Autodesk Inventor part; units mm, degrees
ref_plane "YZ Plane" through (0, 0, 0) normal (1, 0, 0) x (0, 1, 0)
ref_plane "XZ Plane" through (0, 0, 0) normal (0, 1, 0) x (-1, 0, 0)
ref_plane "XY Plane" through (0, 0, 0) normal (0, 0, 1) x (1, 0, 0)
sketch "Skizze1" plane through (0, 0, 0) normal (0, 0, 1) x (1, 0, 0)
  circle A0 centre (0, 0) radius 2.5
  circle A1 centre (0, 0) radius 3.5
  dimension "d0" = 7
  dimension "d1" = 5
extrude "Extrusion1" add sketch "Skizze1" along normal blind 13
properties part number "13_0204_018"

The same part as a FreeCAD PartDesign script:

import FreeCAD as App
import Part
import Sketcher

doc = App.newDocument("Part")
body = doc.addObject("PartDesign::Body", "Body")

sketch1 = body.newObject("Sketcher::SketchObject", "Sketch")
sketch1.AttachmentSupport = (doc.getObject("XY_Plane"), [""])
sketch1.MapMode = "FlatFace"
sketch1.addGeometry(Part.Circle(App.Vector(0, 0, 0), App.Vector(0, 0, 1), 3.5), False)
sketch1.addGeometry(Part.Circle(App.Vector(0, 0, 0), App.Vector(0, 0, 1), 2.5), False)
sketch1.addConstraint(Sketcher.Constraint("Coincident", 0, 3, -1, 1))
sketch1.addConstraint(Sketcher.Constraint("Coincident", 1, 3, -1, 1))
sketch1.addConstraint(Sketcher.Constraint("Diameter", 0, 7.0))
sketch1.addConstraint(Sketcher.Constraint("Diameter", 1, 5.0))
pad1 = body.newObject("PartDesign::Pad", "Pad")
pad1.Profile = sketch1
pad1.Length = 13

doc.recompute()
